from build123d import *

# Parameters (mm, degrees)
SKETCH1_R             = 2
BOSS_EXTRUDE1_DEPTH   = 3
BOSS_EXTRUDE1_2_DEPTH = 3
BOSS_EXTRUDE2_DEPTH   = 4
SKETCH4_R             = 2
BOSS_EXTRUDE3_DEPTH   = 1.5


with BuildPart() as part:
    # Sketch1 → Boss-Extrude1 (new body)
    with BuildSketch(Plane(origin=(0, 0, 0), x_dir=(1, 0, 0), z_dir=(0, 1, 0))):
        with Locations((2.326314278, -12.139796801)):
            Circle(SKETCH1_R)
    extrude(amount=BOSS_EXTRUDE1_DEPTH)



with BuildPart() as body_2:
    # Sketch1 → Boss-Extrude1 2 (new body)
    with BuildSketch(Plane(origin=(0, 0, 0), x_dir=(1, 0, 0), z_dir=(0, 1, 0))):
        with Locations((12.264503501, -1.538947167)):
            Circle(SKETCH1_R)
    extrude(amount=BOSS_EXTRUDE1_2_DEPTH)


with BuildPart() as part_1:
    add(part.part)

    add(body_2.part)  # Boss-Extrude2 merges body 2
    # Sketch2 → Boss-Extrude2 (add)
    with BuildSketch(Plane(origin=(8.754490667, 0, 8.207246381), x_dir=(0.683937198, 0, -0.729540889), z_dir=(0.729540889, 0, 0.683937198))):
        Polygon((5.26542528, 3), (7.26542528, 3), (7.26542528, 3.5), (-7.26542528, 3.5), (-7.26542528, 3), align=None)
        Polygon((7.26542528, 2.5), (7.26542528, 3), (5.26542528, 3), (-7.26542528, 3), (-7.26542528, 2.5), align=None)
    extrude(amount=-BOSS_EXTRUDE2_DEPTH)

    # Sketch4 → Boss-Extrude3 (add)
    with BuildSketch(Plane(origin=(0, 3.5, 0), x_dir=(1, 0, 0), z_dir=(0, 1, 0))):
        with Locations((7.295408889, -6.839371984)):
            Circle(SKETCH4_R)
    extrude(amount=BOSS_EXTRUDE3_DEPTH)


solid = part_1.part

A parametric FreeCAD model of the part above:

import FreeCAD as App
import Part
import Sketcher
from FreeCAD import Vector


def add_polygon(sketch, points):
    """Adds a closed chain of lines whose ends are joined by coincident constraints."""
    first, n = sketch.GeometryCount, len(points)
    for a, b in zip(points, points[1:] + points[:1]):
        sketch.addGeometry(Part.LineSegment(App.Vector(*a, 0), App.Vector(*b, 0)), False)
    for i in range(n):
        sketch.addConstraint(Sketcher.Constraint("Coincident", first + i, 2, first + (i + 1) % n, 1))

doc = App.newDocument("Part")
body = doc.addObject("PartDesign::Body", "Body")

# Sketch on XZ plane
sketch1 = body.newObject("Sketcher::SketchObject", "Sketch")
sketch1.AttachmentSupport = (doc.getObject("XZ_Plane"), [""])
sketch1.MapMode = "FlatFace"
sketch1.addGeometry(Part.Circle(Vector(2.3, 12.1, 0), Vector(0, 0, 1), 2), False)
sketch1.addConstraint(Sketcher.Constraint("Diameter", 0, 4.0))
sketch1.addConstraint(Sketcher.Constraint("DistanceX", -1, 1, 0, 3, 2.326314))
sketch1.addConstraint(Sketcher.Constraint("DistanceY", -1, 1, 0, 3, 12.139797))
pad1 = body.newObject("PartDesign::Pad", "Pad")
pad1.Profile = sketch1
pad1.Length = 3
pad1.Reversed = True
body2 = doc.addObject("PartDesign::Body", "Body001")

# Sketch on XZ plane
sketch2 = body2.newObject("Sketcher::SketchObject", "Sketch001")
sketch2.AttachmentSupport = (doc.getObject("XZ_Plane001"), [""])
sketch2.MapMode = "FlatFace"
sketch2.addGeometry(Part.Circle(Vector(12.3, 1.5, 0), Vector(0, 0, 1), 2), False)
sketch2.addConstraint(Sketcher.Constraint("Diameter", 0, 4.0))
sketch2.addConstraint(Sketcher.Constraint("DistanceX", -1, 1, 0, 3, 12.264504))
sketch2.addConstraint(Sketcher.Constraint("DistanceY", -1, 1, 0, 3, 1.538947))
pad2 = body2.newObject("PartDesign::Pad", "Pad001")
pad2.Profile = sketch2
pad2.Length = 3
pad2.Reversed = True
body.AllowCompound = True
doc.recompute()

boolean = body.newObject("PartDesign::Boolean", "Boolean")
boolean.Type = "Fuse"
boolean.addObjects([body2])

# Sketch on an angled plane
sketch3 = body.newObject("Sketcher::SketchObject", "Sketch002")
sketch3.Placement = App.Placement(Vector(8.754491, 0, 8.207246), App.Rotation(Vector(0.683937198, 0, -0.729540889), Vector(0, 1, 0), Vector(0.729540889, 0, 0.683937198), "ZXY"))
add_polygon(sketch3, [(7.3, 3.5), (-7.3, 3.5), (-7.3, 2.5), (7.3, 2.5)])  # lines 0-3
sketch3.addConstraint(Sketcher.Constraint("Horizontal", 0))
sketch3.addConstraint(Sketcher.Constraint("Vertical", 1))
sketch3.addConstraint(Sketcher.Constraint("Horizontal", 2))
sketch3.addConstraint(Sketcher.Constraint("Vertical", 3))
sketch3.addConstraint(Sketcher.Constraint("DistanceY", 1, 2, 1, 1, 1.0))
sketch3.addConstraint(Sketcher.Constraint("DistanceY", -1, 1, 0, 2, 3.5))
sketch3.addConstraint(Sketcher.Constraint("DistanceX", 0, 2, 0, 1, 14.530851))
sketch3.addConstraint(Sketcher.Constraint("DistanceX", 0, 2, -1, 1, 7.265425))
pad3 = body.newObject("PartDesign::Pad", "Pad002")
pad3.Profile = sketch3
pad3.Length = 4
pad3.Reversed = True

# Sketch on XZ plane
sketch4 = body.newObject("Sketcher::SketchObject", "Sketch003")
sketch4.AttachmentSupport = (doc.getObject("XZ_Plane"), [""])
sketch4.MapMode = "FlatFace"
sketch4.AttachmentOffset = App.Placement(Vector(0, 0, -3.5), App.Rotation())
sketch4.addGeometry(Part.Circle(Vector(7.3, 6.8, 0), Vector(0, 0, 1), 2), False)
sketch4.addConstraint(Sketcher.Constraint("Diameter", 0, 4.0))
sketch4.addConstraint(Sketcher.Constraint("DistanceX", -1, 1, 0, 3, 7.295409))
sketch4.addConstraint(Sketcher.Constraint("DistanceY", -1, 1, 0, 3, 6.839372))
pad4 = body.newObject("PartDesign::Pad", "Pad003")
pad4.Profile = sketch4
pad4.Length = 1.5
pad4.Reversed = True

doc.recompute()
